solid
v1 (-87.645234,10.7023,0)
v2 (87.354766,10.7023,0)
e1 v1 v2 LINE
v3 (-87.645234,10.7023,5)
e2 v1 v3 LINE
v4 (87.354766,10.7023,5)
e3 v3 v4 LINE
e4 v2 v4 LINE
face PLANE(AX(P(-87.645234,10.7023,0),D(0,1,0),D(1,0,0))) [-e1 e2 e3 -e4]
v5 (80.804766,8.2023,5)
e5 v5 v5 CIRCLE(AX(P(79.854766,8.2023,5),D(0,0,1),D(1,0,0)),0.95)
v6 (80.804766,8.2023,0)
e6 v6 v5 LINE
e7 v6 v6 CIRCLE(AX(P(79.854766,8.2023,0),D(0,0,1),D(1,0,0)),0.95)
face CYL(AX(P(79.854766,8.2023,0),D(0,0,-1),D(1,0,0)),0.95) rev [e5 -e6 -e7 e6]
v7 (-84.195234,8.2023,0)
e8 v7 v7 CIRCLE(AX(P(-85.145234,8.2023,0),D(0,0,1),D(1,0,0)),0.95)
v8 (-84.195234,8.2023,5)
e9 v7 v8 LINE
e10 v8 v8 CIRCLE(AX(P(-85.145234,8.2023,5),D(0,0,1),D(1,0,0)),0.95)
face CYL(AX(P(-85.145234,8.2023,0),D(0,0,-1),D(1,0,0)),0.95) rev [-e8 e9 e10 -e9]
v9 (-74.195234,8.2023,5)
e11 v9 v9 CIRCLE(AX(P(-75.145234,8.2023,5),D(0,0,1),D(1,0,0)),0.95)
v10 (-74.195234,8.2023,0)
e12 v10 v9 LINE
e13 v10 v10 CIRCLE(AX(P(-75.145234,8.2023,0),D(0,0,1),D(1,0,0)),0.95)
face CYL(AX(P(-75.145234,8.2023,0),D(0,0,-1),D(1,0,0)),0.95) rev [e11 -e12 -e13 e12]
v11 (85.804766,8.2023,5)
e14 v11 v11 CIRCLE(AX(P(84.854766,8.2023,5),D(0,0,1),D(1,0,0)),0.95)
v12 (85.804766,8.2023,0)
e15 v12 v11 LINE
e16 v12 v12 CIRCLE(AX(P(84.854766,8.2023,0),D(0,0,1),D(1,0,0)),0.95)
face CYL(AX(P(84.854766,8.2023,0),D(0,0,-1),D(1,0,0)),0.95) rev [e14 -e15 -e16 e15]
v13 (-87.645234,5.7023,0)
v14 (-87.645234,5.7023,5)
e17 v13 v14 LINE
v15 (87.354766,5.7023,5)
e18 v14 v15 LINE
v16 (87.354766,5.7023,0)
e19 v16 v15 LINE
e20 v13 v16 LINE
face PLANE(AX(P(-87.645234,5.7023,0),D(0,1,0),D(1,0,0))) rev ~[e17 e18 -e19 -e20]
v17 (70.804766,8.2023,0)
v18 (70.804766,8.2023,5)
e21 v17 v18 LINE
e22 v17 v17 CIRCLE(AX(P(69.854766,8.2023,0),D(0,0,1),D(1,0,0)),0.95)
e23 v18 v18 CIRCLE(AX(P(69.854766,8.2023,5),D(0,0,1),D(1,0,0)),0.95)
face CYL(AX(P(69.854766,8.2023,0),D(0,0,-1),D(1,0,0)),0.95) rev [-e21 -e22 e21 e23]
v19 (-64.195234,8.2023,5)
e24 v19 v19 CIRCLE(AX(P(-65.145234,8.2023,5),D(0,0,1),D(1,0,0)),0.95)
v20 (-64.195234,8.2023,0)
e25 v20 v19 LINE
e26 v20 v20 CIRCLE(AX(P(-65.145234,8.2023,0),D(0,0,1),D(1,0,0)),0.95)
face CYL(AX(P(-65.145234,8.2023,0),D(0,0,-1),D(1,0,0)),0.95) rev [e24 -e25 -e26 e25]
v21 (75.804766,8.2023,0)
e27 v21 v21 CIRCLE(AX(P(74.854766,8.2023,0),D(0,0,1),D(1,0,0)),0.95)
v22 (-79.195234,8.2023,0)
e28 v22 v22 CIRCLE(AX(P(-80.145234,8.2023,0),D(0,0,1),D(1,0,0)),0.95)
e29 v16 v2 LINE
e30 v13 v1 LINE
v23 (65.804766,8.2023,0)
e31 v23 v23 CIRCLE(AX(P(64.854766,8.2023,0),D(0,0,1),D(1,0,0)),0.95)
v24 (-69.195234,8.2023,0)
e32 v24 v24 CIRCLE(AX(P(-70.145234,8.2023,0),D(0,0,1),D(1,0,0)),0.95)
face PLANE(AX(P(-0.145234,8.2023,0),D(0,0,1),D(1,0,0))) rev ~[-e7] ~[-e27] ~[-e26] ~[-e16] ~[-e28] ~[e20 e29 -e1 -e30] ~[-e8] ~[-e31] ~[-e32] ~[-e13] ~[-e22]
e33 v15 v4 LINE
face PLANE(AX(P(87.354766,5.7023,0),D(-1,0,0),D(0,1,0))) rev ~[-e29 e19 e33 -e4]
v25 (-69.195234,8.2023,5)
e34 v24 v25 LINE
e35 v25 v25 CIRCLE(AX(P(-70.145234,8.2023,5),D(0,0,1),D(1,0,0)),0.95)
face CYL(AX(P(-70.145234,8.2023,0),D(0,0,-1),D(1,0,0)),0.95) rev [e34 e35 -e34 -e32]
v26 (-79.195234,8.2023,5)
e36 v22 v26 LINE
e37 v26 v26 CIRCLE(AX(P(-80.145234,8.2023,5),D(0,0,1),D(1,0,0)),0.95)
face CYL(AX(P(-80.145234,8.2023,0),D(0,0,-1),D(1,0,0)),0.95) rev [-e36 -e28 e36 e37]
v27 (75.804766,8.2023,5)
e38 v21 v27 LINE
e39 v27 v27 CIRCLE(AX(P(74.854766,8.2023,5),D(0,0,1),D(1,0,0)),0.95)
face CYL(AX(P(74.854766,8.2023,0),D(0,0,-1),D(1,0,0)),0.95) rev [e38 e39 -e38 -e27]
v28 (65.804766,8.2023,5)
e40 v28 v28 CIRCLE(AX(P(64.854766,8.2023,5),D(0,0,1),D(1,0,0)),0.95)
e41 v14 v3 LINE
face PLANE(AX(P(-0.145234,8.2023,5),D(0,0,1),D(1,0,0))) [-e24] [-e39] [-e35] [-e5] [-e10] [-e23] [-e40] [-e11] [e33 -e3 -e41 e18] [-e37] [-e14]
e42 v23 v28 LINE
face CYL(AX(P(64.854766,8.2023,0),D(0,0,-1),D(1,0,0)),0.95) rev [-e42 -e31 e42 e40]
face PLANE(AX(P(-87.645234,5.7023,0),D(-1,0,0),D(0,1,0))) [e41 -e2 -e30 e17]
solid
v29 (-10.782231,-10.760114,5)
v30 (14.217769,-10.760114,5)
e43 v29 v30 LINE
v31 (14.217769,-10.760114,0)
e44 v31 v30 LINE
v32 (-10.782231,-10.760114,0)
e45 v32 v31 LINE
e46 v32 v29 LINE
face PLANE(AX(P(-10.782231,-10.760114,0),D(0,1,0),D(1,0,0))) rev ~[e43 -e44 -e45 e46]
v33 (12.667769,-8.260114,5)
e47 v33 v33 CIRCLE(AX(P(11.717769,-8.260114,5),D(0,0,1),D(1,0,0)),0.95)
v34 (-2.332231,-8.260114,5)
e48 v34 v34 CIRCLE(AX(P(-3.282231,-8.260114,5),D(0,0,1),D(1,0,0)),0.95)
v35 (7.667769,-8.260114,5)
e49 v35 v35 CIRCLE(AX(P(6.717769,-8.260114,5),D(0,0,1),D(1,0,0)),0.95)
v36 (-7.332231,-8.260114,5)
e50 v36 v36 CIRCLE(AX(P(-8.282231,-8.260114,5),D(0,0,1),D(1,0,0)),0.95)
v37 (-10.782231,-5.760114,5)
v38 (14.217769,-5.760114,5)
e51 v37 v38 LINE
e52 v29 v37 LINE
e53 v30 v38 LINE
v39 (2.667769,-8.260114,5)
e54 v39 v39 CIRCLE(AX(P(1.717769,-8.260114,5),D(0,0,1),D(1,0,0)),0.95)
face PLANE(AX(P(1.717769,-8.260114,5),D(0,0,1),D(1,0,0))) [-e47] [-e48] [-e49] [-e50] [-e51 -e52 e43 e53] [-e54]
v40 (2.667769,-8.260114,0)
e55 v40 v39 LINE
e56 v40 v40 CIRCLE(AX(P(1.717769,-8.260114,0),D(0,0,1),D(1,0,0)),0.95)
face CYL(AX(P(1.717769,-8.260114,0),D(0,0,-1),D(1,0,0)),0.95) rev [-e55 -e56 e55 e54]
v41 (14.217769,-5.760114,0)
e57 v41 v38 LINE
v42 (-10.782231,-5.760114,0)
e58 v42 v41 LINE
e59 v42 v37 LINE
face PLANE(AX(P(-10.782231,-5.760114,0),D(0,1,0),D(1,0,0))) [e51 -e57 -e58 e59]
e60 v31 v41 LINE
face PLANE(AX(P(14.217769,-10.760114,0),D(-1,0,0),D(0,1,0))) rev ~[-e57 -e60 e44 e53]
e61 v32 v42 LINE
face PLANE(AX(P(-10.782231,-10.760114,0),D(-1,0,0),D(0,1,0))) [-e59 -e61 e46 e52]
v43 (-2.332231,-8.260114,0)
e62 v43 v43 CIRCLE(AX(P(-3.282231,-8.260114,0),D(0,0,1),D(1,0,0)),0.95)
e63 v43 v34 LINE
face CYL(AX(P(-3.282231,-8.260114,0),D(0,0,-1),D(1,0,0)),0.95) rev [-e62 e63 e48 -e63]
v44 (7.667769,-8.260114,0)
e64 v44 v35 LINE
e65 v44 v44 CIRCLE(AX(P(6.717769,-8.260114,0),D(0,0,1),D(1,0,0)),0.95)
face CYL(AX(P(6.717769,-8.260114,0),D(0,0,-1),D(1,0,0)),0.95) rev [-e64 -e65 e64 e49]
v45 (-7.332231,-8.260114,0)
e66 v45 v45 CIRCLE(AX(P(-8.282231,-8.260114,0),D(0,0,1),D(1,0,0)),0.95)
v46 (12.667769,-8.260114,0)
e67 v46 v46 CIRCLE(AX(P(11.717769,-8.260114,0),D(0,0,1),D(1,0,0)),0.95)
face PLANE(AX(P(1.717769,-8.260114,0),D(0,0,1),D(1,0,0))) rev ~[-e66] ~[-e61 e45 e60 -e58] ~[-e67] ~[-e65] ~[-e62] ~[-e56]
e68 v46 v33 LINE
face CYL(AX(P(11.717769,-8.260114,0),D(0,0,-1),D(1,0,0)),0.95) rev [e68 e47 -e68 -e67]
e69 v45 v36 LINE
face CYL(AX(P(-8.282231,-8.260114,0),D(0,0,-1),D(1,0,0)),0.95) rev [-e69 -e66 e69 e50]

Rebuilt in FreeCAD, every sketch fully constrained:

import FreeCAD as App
import Part
import Sketcher


def add_polygon(sketch, points):
    """Adds a closed chain of lines whose ends are joined by coincident constraints."""
    first, n = sketch.GeometryCount, len(points)
    for a, b in zip(points, points[1:] + points[:1]):
        sketch.addGeometry(Part.LineSegment(App.Vector(*a, 0), App.Vector(*b, 0)), False)
    for i in range(n):
        sketch.addConstraint(Sketcher.Constraint("Coincident", first + i, 2, first + (i + 1) % n, 1))

doc = App.newDocument("Part")
body = doc.addObject("PartDesign::Body", "Body")
body.AllowCompound = True

# Sketch on XY plane
sketch1 = body.newObject("Sketcher::SketchObject", "Sketch")
sketch1.AttachmentSupport = (doc.getObject("XY_Plane"), [""])
sketch1.MapMode = "FlatFace"
add_polygon(sketch1, [(-10.8, -5.8), (-10.8, -10.8), (14.2, -10.8), (14.2, -5.8)])  # lines 0-3
sketch1.addGeometry(Part.Circle(App.Vector(-8.3, -8.3, 0), App.Vector(0, 0, 1), 0.9), False)  # 4
sketch1.addGeometry(Part.Circle(App.Vector(-3.3, -8.3, 0), App.Vector(0, 0, 1), 0.9), False)  # 5
sketch1.addGeometry(Part.Circle(App.Vector(1.7, -8.3, 0), App.Vector(0, 0, 1), 0.9), False)  # 6
sketch1.addGeometry(Part.Circle(App.Vector(6.7, -8.3, 0), App.Vector(0, 0, 1), 0.9), False)  # 7
sketch1.addGeometry(Part.Circle(App.Vector(11.7, -8.3, 0), App.Vector(0, 0, 1), 0.9), False)  # 8
add_polygon(sketch1, [(-87.6, 10.7), (-87.6, 5.7), (87.4, 5.7), (87.4, 10.7)])  # lines 9-12
sketch1.addGeometry(Part.Circle(App.Vector(-85.1, 8.2, 0), App.Vector(0, 0, 1), 0.9), False)  # 13
sketch1.addGeometry(Part.Circle(App.Vector(-80.1, 8.2, 0), App.Vector(0, 0, 1), 0.9), False)  # 14
sketch1.addGeometry(Part.Circle(App.Vector(-75.1, 8.2, 0), App.Vector(0, 0, 1), 0.9), False)  # 15
sketch1.addGeometry(Part.Circle(App.Vector(-70.1, 8.2, 0), App.Vector(0, 0, 1), 0.9), False)  # 16
sketch1.addGeometry(Part.Circle(App.Vector(-65.1, 8.2, 0), App.Vector(0, 0, 1), 0.9), False)  # 17
sketch1.addGeometry(Part.Circle(App.Vector(64.9, 8.2, 0), App.Vector(0, 0, 1), 0.9), False)  # 18
sketch1.addGeometry(Part.Circle(App.Vector(69.9, 8.2, 0), App.Vector(0, 0, 1), 0.9), False)  # 19
sketch1.addGeometry(Part.Circle(App.Vector(74.9, 8.2, 0), App.Vector(0, 0, 1), 0.9), False)  # 20
sketch1.addGeometry(Part.Circle(App.Vector(79.9, 8.2, 0), App.Vector(0, 0, 1), 0.9), False)  # 21
sketch1.addGeometry(Part.Circle(App.Vector(84.9, 8.2, 0), App.Vector(0, 0, 1), 0.9), False)  # 22
sketch1.addConstraint([
    Sketcher.Constraint("Vertical", 0),
    Sketcher.Constraint("Horizontal", 1),
    Sketcher.Constraint("Vertical", 2),
    Sketcher.Constraint("Horizontal", 3),
    Sketcher.Constraint("Vertical", 9),
    Sketcher.Constraint("Horizontal", 10),
    Sketcher.Constraint("Vertical", 11),
    Sketcher.Constraint("Horizontal", 12),
    Sketcher.Constraint("Equal", 4, 5),
    Sketcher.Constraint("Equal", 5, 6),
    Sketcher.Constraint("Equal", 6, 7),
    Sketcher.Constraint("Equal", 7, 8),
    Sketcher.Constraint("Equal", 8, 13),
    Sketcher.Constraint("Equal", 13, 14),
    Sketcher.Constraint("Equal", 14, 15),
    Sketcher.Constraint("Equal", 15, 16),
    Sketcher.Constraint("Equal", 16, 17),
    Sketcher.Constraint("Equal", 17, 18),
    Sketcher.Constraint("Equal", 18, 19),
    Sketcher.Constraint("Equal", 19, 20),
    Sketcher.Constraint("Equal", 20, 21),
    Sketcher.Constraint("Equal", 21, 22),
    Sketcher.Constraint("Horizontal", 4, 3, 5, 3),
    Sketcher.Constraint("Horizontal", 5, 3, 6, 3),
    Sketcher.Constraint("Horizontal", 6, 3, 7, 3),
    Sketcher.Constraint("Horizontal", 7, 3, 8, 3),
    Sketcher.Constraint("Horizontal", 13, 3, 14, 3),
    Sketcher.Constraint("Horizontal", 14, 3, 15, 3),
    Sketcher.Constraint("Horizontal", 15, 3, 16, 3),
    Sketcher.Constraint("Horizontal", 16, 3, 17, 3),
    Sketcher.Constraint("Horizontal", 17, 3, 18, 3),
    Sketcher.Constraint("Horizontal", 18, 3, 19, 3),
    Sketcher.Constraint("Horizontal", 19, 3, 20, 3),
    Sketcher.Constraint("Horizontal", 20, 3, 21, 3),
    Sketcher.Constraint("Horizontal", 21, 3, 22, 3),
    Sketcher.Constraint("Equal", 2, 9),
    Sketcher.Constraint("Diameter", 4, 1.9),
    Sketcher.Constraint("DistanceX", 1, 1, 1, 2, 25.0),
    Sketcher.Constraint("DistanceX", 10, 1, 10, 2, 175.0),
    Sketcher.Constraint("DistanceY", 0, 2, 0, 1, 5.0),
    Sketcher.Constraint("DistanceX", 4, 3, 5, 3, 5.0),
    Sketcher.Constraint("DistanceX", 5, 3, 6, 3, 5.0),
    Sketcher.Constraint("DistanceX", 6, 3, 7, 3, 5.0),
    Sketcher.Constraint("DistanceX", 7, 3, 8, 3, 5.0),
    Sketcher.Constraint("DistanceX", 13, 3, 14, 3, 5.0),
    Sketcher.Constraint("DistanceX", 14, 3, 15, 3, 5.0),
    Sketcher.Constraint("DistanceX", 15, 3, 16, 3, 5.0),
    Sketcher.Constraint("DistanceX", 16, 3, 17, 3, 5.0),
    Sketcher.Constraint("DistanceX", 18, 3, 19, 3, 5.0),
    Sketcher.Constraint("DistanceX", 19, 3, 20, 3, 5.0),
    Sketcher.Constraint("DistanceX", 20, 3, 21, 3, 5.0),
    Sketcher.Constraint("DistanceX", 21, 3, 22, 3, 5.0),
    Sketcher.Constraint("DistanceX", 0, 2, 4, 3, 2.5),
    Sketcher.Constraint("DistanceY", 0, 2, 4, 3, 2.5),
    Sketcher.Constraint("DistanceX", 9, 2, 13, 3, 2.5),
    Sketcher.Constraint("DistanceY", 9, 2, 13, 3, 2.5),
    Sketcher.Constraint("DistanceX", 22, 3, 10, 2, 2.5),
    Sketcher.Constraint("DistanceY", -1, 1, 13, 3, 8.2023),
    Sketcher.Constraint("DistanceX", 4, 3, -1, 1, 8.282231),
    Sketcher.Constraint("DistanceY", 4, 3, -1, 1, 8.260114),
    Sketcher.Constraint("DistanceX", 13, 3, -1, 1, 85.145234),
])
pad1 = body.newObject("PartDesign::Pad", "Pad")
pad1.Profile = sketch1
pad1.Length = 5

doc.recompute()
